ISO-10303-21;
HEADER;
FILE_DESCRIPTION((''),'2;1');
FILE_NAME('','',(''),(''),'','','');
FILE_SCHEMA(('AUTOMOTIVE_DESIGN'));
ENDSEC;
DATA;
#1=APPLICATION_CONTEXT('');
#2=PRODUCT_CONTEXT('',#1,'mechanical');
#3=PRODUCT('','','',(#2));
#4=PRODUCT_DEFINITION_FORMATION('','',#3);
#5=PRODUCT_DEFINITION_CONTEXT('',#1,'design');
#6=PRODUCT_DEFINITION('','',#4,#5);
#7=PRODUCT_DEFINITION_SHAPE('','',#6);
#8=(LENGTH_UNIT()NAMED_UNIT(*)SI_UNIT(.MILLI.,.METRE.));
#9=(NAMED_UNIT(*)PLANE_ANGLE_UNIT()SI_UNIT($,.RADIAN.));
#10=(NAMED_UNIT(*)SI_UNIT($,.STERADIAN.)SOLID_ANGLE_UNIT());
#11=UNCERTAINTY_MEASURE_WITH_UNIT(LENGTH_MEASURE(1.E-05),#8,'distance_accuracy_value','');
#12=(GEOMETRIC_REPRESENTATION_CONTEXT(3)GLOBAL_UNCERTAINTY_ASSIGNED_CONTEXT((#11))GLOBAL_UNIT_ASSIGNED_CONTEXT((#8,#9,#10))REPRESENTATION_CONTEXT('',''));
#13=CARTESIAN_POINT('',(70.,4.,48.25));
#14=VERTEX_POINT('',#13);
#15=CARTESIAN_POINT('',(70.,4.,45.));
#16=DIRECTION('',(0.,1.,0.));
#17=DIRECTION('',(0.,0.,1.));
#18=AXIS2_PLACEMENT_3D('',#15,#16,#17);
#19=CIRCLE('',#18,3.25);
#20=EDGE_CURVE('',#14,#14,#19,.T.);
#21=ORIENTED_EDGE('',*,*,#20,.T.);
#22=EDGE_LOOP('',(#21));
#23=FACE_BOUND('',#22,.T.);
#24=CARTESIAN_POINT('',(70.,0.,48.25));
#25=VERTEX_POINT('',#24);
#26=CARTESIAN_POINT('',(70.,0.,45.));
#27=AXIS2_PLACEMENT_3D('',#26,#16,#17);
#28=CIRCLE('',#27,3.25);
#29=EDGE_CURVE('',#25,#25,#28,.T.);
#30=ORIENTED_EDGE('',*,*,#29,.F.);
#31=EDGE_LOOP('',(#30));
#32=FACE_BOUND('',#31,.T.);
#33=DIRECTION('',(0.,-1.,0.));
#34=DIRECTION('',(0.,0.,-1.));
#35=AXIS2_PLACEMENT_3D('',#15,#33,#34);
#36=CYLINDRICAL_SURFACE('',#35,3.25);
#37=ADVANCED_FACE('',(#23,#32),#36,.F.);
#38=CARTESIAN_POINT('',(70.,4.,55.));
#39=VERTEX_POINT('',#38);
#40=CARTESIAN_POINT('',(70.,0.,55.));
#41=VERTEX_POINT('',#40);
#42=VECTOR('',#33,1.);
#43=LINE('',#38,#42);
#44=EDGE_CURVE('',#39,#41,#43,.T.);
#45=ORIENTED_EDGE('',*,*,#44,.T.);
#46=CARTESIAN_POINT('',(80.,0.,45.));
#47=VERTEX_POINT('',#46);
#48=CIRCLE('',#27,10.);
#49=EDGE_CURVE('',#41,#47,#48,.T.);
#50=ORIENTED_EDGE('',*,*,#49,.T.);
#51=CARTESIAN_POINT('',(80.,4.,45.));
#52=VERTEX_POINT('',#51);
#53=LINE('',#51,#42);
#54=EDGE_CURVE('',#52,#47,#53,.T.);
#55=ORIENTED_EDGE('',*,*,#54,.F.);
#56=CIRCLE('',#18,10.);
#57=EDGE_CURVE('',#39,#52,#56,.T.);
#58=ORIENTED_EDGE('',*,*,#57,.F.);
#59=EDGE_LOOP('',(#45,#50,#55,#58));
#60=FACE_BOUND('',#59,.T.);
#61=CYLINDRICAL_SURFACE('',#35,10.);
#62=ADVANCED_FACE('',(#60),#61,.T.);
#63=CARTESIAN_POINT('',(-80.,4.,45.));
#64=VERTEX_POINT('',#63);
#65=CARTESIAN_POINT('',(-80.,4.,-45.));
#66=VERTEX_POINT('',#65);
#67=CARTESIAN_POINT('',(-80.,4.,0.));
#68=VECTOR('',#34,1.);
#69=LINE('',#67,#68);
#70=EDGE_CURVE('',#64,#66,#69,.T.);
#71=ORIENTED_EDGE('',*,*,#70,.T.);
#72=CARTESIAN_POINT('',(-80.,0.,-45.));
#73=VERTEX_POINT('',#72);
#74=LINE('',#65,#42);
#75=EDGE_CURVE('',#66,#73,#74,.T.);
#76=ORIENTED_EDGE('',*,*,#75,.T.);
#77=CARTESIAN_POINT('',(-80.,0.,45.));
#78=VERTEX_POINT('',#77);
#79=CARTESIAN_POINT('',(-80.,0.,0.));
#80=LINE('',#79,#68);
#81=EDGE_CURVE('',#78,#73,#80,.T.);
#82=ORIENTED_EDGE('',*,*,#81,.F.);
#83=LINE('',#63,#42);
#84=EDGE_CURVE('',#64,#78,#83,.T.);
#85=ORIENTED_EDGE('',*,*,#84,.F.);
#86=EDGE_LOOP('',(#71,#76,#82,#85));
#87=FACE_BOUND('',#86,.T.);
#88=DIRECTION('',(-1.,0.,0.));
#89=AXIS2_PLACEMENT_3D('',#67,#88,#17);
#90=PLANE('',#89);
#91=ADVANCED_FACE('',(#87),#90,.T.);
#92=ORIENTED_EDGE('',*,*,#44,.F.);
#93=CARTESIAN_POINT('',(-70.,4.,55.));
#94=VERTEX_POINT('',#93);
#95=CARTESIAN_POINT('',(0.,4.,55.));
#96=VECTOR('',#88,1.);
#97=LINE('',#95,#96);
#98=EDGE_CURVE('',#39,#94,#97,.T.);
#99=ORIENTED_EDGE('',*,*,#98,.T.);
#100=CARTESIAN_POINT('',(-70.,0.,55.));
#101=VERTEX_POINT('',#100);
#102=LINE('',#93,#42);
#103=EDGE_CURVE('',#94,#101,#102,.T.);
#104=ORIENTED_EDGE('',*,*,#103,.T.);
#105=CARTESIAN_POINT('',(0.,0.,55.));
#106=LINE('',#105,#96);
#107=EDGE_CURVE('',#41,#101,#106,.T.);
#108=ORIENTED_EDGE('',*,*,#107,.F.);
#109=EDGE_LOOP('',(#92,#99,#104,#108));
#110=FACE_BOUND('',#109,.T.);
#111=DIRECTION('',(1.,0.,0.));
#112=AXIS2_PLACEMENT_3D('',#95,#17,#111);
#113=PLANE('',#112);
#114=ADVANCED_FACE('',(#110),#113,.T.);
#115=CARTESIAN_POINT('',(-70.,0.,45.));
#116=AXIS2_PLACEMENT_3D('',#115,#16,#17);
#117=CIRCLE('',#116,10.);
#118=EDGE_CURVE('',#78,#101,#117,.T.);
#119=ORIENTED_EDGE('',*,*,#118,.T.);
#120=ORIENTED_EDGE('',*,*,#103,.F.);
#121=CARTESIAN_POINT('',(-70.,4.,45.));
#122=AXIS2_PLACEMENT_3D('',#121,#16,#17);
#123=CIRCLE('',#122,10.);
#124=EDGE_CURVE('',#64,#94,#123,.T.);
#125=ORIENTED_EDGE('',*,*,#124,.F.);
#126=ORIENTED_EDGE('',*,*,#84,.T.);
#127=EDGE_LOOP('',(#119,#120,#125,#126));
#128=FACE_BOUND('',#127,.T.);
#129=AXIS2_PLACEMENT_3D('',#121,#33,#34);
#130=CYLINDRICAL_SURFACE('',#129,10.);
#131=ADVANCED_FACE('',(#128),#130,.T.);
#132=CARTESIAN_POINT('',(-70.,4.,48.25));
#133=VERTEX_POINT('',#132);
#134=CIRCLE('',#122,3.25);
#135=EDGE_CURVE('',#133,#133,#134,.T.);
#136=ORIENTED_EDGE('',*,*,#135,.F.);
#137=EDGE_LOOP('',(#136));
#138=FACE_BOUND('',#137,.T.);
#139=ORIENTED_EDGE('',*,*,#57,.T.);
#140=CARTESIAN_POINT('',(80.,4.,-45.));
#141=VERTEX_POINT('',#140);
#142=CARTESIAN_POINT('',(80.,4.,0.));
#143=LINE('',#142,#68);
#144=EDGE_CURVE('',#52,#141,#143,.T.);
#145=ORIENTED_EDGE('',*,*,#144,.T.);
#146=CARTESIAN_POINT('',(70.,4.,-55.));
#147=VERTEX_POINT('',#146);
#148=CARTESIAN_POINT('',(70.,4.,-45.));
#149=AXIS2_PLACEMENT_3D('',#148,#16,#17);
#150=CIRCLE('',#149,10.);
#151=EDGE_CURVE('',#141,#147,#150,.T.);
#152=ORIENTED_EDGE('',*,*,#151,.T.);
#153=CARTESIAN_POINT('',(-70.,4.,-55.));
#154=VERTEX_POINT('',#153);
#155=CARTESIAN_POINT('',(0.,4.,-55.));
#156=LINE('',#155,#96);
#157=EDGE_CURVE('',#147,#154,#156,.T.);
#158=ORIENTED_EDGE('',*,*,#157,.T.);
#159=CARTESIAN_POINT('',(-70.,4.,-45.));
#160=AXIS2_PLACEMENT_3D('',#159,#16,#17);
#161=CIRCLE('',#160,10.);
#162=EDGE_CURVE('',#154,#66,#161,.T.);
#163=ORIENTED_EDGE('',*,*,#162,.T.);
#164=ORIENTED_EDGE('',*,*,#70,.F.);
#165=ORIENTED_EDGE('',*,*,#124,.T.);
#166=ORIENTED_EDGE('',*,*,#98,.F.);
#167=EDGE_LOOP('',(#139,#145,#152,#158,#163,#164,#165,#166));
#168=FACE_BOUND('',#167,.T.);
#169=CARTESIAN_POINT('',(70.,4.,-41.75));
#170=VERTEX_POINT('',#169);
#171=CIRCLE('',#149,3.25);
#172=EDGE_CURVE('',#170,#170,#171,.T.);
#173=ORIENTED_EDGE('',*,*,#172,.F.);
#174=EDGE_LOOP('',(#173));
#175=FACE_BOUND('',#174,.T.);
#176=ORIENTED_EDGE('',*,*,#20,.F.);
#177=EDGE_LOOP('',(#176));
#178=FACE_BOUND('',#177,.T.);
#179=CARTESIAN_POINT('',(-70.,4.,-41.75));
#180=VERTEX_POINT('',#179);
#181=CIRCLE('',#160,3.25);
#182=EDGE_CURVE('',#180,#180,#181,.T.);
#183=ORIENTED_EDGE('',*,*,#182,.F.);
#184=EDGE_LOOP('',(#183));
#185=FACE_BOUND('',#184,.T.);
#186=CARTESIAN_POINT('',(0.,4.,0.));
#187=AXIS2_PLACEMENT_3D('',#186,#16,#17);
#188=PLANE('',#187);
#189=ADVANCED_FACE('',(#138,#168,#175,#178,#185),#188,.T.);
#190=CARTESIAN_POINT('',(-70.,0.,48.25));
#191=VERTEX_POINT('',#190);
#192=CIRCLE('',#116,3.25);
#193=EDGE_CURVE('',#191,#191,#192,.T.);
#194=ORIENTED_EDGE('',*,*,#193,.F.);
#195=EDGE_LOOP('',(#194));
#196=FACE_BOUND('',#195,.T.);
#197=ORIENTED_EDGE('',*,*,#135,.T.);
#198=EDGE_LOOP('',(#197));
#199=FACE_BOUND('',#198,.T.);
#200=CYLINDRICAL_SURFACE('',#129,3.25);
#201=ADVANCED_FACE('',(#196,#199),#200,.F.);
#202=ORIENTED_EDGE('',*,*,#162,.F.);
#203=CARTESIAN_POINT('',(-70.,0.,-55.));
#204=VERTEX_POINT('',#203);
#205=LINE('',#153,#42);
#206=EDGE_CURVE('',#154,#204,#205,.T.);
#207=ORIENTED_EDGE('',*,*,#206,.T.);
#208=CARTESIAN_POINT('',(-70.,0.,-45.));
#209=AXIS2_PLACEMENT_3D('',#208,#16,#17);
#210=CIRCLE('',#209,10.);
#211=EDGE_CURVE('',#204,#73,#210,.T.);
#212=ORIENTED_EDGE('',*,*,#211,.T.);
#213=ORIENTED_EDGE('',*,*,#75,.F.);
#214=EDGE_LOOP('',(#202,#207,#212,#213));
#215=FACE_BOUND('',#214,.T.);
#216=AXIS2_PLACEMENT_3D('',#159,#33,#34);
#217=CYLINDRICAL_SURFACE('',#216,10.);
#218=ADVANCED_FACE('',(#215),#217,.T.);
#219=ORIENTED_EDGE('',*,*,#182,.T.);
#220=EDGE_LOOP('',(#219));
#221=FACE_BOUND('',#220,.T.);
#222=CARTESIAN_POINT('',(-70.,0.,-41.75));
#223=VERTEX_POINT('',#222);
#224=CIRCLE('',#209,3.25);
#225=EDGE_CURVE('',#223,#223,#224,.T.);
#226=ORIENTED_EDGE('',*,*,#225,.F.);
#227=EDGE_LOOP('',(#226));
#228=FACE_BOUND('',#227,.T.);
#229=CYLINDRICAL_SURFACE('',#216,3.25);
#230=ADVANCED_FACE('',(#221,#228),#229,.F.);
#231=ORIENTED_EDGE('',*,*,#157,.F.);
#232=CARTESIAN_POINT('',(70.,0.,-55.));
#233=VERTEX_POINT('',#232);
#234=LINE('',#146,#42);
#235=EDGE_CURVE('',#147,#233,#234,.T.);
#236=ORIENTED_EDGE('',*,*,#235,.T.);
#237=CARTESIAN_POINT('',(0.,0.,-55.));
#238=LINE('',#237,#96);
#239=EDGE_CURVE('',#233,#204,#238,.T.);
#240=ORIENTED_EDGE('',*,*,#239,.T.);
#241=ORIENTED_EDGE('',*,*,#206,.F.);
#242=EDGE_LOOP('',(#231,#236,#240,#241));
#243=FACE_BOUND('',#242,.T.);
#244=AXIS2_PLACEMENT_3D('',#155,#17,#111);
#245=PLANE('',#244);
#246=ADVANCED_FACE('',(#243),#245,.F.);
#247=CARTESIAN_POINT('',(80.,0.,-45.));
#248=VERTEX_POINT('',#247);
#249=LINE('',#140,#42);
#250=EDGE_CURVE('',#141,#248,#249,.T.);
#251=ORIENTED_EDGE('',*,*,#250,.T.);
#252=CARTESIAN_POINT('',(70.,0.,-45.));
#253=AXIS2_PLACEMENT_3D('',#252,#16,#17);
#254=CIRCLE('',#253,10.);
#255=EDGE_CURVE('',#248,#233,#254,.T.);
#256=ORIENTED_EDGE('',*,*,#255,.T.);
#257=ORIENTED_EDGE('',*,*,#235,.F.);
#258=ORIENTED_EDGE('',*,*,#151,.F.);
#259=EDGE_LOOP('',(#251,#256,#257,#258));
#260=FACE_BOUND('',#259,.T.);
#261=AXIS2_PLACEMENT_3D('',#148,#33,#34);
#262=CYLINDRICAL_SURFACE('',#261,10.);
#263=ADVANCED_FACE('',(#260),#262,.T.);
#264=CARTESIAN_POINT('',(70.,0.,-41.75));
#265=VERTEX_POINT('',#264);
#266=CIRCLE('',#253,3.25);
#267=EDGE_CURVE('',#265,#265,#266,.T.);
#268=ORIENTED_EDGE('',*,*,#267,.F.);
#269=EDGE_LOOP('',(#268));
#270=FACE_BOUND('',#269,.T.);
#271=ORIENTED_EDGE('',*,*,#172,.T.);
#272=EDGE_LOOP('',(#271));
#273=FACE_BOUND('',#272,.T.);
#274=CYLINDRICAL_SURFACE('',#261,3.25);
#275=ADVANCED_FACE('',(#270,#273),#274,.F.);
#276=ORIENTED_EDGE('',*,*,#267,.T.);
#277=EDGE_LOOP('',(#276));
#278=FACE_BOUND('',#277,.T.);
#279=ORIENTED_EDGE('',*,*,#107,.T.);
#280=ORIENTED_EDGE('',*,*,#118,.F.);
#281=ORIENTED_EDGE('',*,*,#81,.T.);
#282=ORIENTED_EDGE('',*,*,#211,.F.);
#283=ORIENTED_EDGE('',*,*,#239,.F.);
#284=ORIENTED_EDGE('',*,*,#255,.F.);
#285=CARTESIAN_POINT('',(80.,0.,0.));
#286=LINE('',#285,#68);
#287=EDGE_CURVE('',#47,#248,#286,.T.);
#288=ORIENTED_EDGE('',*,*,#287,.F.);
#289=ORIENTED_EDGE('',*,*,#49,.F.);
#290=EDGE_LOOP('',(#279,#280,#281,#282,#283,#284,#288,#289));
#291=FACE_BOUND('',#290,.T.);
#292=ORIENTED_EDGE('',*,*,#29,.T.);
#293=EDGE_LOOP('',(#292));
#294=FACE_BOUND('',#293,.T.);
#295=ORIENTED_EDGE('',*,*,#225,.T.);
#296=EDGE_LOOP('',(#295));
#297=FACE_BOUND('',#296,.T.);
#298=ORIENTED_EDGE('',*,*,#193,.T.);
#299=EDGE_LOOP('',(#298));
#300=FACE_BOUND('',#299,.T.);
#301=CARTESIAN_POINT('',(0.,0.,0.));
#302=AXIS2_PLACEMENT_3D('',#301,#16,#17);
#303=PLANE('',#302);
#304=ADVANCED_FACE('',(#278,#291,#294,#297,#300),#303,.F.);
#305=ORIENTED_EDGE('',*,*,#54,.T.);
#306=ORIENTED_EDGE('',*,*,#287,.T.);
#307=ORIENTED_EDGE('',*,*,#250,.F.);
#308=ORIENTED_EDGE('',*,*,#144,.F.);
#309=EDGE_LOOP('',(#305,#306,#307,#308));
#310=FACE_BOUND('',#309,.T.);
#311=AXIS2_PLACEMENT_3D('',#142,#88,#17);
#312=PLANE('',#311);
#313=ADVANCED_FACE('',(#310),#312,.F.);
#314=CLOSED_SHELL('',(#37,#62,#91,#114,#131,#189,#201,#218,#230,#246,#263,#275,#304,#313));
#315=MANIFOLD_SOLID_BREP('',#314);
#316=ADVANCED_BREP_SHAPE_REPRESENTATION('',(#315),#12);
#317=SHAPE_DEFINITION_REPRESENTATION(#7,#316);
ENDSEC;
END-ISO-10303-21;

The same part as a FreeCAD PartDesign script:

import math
import FreeCAD as App
import Part
import Sketcher
Q = App.Units.Quantity

doc = App.newDocument("Part")
body = doc.addObject("PartDesign::Body", "Body")

# Sketch on XZ plane
sketch1 = body.newObject("Sketcher::SketchObject", "Sketch")
sketch1.AttachmentSupport = (doc.getObject("XZ_Plane"), [""])
sketch1.MapMode = "FlatFace"
sketch1.addGeometry(Part.LineSegment(App.Vector(-70, 55, 0), App.Vector(70, 55, 0)), False)
sketch1.addGeometry(Part.ArcOfCircle(Part.Circle(App.Vector(70, 45, 0), App.Vector(0, 0, 1), 10), math.radians(0), math.radians(90)), False)
sketch1.addGeometry(Part.LineSegment(App.Vector(80, 45, 0), App.Vector(80, -45, 0)), False)
sketch1.addGeometry(Part.ArcOfCircle(Part.Circle(App.Vector(70, -45, 0), App.Vector(0, 0, 1), 10), math.radians(-90), math.radians(0)), False)
sketch1.addGeometry(Part.LineSegment(App.Vector(70, -55, 0), App.Vector(-70, -55, 0)), False)
sketch1.addGeometry(Part.ArcOfCircle(Part.Circle(App.Vector(-70, -45, 0), App.Vector(0, 0, 1), 10), math.radians(180), math.radians(270)), False)
sketch1.addGeometry(Part.LineSegment(App.Vector(-80, -45, 0), App.Vector(-80, 45, 0)), False)
sketch1.addGeometry(Part.ArcOfCircle(Part.Circle(App.Vector(-70, 45, 0), App.Vector(0, 0, 1), 10), math.radians(90), math.radians(180)), False)
sketch1.addGeometry(Part.Circle(App.Vector(70, 45, 0), App.Vector(0, 0, 1), 3.2), False)
sketch1.addGeometry(Part.Circle(App.Vector(-70, 45, 0), App.Vector(0, 0, 1), 3.2), False)
sketch1.addGeometry(Part.Circle(App.Vector(70, -45, 0), App.Vector(0, 0, 1), 3.2), False)
sketch1.addGeometry(Part.Circle(App.Vector(-70, -45, 0), App.Vector(0, 0, 1), 3.2), False)
sketch1.addConstraint(Sketcher.Constraint("Tangent", 0, 2, 1, 2))
sketch1.addConstraint(Sketcher.Constraint("Tangent", 1, 1, 2, 1))
sketch1.addConstraint(Sketcher.Constraint("Tangent", 2, 2, 3, 2))
sketch1.addConstraint(Sketcher.Constraint("Tangent", 3, 1, 4, 1))
sketch1.addConstraint(Sketcher.Constraint("Tangent", 4, 2, 5, 2))
sketch1.addConstraint(Sketcher.Constraint("Tangent", 5, 1, 6, 1))
sketch1.addConstraint(Sketcher.Constraint("Tangent", 6, 2, 7, 2))
sketch1.addConstraint(Sketcher.Constraint("Tangent", 7, 1, 0, 1))
sketch1.addConstraint(Sketcher.Constraint("Horizontal", 0))
sketch1.addConstraint(Sketcher.Constraint("Vertical", 2))
sketch1.addConstraint(Sketcher.Constraint("Horizontal", 4))
sketch1.addConstraint(Sketcher.Constraint("Vertical", 6))
sketch1.addConstraint(Sketcher.Constraint("Coincident", 8, 3, 1, 3))
sketch1.addConstraint(Sketcher.Constraint("Coincident", 9, 3, 7, 3))
sketch1.addConstraint(Sketcher.Constraint("Coincident", 10, 3, 3, 3))
sketch1.addConstraint(Sketcher.Constraint("Coincident", 11, 3, 5, 3))
sketch1.addConstraint(Sketcher.Constraint("Equal", 1, 3))
sketch1.addConstraint(Sketcher.Constraint("Equal", 3, 5))
sketch1.addConstraint(Sketcher.Constraint("Equal", 5, 7))
sketch1.addConstraint(Sketcher.Constraint("Equal", 8, 9))
sketch1.addConstraint(Sketcher.Constraint("Equal", 9, 10))
sketch1.addConstraint(Sketcher.Constraint("Equal", 10, 11))
sketch1.addConstraint(Sketcher.Constraint("Symmetric", 1, 3, 5, 3, -1, 1))
sketch1.addConstraint(Sketcher.Constraint("Radius", 1, Q("10 mm")))
sketch1.addConstraint(Sketcher.Constraint("Diameter", 8, Q("6.5 mm")))
sketch1.addConstraint(Sketcher.Constraint("DistanceX", 0, 1, 0, 2, Q("140 mm")))
sketch1.addConstraint(Sketcher.Constraint("DistanceY", 2, 2, 2, 1, Q("90 mm")))
pad1 = body.newObject("PartDesign::Pad", "Pad")
pad1.Profile = sketch1
pad1.Length = 4
pad1.Reversed = True

doc.recompute()
